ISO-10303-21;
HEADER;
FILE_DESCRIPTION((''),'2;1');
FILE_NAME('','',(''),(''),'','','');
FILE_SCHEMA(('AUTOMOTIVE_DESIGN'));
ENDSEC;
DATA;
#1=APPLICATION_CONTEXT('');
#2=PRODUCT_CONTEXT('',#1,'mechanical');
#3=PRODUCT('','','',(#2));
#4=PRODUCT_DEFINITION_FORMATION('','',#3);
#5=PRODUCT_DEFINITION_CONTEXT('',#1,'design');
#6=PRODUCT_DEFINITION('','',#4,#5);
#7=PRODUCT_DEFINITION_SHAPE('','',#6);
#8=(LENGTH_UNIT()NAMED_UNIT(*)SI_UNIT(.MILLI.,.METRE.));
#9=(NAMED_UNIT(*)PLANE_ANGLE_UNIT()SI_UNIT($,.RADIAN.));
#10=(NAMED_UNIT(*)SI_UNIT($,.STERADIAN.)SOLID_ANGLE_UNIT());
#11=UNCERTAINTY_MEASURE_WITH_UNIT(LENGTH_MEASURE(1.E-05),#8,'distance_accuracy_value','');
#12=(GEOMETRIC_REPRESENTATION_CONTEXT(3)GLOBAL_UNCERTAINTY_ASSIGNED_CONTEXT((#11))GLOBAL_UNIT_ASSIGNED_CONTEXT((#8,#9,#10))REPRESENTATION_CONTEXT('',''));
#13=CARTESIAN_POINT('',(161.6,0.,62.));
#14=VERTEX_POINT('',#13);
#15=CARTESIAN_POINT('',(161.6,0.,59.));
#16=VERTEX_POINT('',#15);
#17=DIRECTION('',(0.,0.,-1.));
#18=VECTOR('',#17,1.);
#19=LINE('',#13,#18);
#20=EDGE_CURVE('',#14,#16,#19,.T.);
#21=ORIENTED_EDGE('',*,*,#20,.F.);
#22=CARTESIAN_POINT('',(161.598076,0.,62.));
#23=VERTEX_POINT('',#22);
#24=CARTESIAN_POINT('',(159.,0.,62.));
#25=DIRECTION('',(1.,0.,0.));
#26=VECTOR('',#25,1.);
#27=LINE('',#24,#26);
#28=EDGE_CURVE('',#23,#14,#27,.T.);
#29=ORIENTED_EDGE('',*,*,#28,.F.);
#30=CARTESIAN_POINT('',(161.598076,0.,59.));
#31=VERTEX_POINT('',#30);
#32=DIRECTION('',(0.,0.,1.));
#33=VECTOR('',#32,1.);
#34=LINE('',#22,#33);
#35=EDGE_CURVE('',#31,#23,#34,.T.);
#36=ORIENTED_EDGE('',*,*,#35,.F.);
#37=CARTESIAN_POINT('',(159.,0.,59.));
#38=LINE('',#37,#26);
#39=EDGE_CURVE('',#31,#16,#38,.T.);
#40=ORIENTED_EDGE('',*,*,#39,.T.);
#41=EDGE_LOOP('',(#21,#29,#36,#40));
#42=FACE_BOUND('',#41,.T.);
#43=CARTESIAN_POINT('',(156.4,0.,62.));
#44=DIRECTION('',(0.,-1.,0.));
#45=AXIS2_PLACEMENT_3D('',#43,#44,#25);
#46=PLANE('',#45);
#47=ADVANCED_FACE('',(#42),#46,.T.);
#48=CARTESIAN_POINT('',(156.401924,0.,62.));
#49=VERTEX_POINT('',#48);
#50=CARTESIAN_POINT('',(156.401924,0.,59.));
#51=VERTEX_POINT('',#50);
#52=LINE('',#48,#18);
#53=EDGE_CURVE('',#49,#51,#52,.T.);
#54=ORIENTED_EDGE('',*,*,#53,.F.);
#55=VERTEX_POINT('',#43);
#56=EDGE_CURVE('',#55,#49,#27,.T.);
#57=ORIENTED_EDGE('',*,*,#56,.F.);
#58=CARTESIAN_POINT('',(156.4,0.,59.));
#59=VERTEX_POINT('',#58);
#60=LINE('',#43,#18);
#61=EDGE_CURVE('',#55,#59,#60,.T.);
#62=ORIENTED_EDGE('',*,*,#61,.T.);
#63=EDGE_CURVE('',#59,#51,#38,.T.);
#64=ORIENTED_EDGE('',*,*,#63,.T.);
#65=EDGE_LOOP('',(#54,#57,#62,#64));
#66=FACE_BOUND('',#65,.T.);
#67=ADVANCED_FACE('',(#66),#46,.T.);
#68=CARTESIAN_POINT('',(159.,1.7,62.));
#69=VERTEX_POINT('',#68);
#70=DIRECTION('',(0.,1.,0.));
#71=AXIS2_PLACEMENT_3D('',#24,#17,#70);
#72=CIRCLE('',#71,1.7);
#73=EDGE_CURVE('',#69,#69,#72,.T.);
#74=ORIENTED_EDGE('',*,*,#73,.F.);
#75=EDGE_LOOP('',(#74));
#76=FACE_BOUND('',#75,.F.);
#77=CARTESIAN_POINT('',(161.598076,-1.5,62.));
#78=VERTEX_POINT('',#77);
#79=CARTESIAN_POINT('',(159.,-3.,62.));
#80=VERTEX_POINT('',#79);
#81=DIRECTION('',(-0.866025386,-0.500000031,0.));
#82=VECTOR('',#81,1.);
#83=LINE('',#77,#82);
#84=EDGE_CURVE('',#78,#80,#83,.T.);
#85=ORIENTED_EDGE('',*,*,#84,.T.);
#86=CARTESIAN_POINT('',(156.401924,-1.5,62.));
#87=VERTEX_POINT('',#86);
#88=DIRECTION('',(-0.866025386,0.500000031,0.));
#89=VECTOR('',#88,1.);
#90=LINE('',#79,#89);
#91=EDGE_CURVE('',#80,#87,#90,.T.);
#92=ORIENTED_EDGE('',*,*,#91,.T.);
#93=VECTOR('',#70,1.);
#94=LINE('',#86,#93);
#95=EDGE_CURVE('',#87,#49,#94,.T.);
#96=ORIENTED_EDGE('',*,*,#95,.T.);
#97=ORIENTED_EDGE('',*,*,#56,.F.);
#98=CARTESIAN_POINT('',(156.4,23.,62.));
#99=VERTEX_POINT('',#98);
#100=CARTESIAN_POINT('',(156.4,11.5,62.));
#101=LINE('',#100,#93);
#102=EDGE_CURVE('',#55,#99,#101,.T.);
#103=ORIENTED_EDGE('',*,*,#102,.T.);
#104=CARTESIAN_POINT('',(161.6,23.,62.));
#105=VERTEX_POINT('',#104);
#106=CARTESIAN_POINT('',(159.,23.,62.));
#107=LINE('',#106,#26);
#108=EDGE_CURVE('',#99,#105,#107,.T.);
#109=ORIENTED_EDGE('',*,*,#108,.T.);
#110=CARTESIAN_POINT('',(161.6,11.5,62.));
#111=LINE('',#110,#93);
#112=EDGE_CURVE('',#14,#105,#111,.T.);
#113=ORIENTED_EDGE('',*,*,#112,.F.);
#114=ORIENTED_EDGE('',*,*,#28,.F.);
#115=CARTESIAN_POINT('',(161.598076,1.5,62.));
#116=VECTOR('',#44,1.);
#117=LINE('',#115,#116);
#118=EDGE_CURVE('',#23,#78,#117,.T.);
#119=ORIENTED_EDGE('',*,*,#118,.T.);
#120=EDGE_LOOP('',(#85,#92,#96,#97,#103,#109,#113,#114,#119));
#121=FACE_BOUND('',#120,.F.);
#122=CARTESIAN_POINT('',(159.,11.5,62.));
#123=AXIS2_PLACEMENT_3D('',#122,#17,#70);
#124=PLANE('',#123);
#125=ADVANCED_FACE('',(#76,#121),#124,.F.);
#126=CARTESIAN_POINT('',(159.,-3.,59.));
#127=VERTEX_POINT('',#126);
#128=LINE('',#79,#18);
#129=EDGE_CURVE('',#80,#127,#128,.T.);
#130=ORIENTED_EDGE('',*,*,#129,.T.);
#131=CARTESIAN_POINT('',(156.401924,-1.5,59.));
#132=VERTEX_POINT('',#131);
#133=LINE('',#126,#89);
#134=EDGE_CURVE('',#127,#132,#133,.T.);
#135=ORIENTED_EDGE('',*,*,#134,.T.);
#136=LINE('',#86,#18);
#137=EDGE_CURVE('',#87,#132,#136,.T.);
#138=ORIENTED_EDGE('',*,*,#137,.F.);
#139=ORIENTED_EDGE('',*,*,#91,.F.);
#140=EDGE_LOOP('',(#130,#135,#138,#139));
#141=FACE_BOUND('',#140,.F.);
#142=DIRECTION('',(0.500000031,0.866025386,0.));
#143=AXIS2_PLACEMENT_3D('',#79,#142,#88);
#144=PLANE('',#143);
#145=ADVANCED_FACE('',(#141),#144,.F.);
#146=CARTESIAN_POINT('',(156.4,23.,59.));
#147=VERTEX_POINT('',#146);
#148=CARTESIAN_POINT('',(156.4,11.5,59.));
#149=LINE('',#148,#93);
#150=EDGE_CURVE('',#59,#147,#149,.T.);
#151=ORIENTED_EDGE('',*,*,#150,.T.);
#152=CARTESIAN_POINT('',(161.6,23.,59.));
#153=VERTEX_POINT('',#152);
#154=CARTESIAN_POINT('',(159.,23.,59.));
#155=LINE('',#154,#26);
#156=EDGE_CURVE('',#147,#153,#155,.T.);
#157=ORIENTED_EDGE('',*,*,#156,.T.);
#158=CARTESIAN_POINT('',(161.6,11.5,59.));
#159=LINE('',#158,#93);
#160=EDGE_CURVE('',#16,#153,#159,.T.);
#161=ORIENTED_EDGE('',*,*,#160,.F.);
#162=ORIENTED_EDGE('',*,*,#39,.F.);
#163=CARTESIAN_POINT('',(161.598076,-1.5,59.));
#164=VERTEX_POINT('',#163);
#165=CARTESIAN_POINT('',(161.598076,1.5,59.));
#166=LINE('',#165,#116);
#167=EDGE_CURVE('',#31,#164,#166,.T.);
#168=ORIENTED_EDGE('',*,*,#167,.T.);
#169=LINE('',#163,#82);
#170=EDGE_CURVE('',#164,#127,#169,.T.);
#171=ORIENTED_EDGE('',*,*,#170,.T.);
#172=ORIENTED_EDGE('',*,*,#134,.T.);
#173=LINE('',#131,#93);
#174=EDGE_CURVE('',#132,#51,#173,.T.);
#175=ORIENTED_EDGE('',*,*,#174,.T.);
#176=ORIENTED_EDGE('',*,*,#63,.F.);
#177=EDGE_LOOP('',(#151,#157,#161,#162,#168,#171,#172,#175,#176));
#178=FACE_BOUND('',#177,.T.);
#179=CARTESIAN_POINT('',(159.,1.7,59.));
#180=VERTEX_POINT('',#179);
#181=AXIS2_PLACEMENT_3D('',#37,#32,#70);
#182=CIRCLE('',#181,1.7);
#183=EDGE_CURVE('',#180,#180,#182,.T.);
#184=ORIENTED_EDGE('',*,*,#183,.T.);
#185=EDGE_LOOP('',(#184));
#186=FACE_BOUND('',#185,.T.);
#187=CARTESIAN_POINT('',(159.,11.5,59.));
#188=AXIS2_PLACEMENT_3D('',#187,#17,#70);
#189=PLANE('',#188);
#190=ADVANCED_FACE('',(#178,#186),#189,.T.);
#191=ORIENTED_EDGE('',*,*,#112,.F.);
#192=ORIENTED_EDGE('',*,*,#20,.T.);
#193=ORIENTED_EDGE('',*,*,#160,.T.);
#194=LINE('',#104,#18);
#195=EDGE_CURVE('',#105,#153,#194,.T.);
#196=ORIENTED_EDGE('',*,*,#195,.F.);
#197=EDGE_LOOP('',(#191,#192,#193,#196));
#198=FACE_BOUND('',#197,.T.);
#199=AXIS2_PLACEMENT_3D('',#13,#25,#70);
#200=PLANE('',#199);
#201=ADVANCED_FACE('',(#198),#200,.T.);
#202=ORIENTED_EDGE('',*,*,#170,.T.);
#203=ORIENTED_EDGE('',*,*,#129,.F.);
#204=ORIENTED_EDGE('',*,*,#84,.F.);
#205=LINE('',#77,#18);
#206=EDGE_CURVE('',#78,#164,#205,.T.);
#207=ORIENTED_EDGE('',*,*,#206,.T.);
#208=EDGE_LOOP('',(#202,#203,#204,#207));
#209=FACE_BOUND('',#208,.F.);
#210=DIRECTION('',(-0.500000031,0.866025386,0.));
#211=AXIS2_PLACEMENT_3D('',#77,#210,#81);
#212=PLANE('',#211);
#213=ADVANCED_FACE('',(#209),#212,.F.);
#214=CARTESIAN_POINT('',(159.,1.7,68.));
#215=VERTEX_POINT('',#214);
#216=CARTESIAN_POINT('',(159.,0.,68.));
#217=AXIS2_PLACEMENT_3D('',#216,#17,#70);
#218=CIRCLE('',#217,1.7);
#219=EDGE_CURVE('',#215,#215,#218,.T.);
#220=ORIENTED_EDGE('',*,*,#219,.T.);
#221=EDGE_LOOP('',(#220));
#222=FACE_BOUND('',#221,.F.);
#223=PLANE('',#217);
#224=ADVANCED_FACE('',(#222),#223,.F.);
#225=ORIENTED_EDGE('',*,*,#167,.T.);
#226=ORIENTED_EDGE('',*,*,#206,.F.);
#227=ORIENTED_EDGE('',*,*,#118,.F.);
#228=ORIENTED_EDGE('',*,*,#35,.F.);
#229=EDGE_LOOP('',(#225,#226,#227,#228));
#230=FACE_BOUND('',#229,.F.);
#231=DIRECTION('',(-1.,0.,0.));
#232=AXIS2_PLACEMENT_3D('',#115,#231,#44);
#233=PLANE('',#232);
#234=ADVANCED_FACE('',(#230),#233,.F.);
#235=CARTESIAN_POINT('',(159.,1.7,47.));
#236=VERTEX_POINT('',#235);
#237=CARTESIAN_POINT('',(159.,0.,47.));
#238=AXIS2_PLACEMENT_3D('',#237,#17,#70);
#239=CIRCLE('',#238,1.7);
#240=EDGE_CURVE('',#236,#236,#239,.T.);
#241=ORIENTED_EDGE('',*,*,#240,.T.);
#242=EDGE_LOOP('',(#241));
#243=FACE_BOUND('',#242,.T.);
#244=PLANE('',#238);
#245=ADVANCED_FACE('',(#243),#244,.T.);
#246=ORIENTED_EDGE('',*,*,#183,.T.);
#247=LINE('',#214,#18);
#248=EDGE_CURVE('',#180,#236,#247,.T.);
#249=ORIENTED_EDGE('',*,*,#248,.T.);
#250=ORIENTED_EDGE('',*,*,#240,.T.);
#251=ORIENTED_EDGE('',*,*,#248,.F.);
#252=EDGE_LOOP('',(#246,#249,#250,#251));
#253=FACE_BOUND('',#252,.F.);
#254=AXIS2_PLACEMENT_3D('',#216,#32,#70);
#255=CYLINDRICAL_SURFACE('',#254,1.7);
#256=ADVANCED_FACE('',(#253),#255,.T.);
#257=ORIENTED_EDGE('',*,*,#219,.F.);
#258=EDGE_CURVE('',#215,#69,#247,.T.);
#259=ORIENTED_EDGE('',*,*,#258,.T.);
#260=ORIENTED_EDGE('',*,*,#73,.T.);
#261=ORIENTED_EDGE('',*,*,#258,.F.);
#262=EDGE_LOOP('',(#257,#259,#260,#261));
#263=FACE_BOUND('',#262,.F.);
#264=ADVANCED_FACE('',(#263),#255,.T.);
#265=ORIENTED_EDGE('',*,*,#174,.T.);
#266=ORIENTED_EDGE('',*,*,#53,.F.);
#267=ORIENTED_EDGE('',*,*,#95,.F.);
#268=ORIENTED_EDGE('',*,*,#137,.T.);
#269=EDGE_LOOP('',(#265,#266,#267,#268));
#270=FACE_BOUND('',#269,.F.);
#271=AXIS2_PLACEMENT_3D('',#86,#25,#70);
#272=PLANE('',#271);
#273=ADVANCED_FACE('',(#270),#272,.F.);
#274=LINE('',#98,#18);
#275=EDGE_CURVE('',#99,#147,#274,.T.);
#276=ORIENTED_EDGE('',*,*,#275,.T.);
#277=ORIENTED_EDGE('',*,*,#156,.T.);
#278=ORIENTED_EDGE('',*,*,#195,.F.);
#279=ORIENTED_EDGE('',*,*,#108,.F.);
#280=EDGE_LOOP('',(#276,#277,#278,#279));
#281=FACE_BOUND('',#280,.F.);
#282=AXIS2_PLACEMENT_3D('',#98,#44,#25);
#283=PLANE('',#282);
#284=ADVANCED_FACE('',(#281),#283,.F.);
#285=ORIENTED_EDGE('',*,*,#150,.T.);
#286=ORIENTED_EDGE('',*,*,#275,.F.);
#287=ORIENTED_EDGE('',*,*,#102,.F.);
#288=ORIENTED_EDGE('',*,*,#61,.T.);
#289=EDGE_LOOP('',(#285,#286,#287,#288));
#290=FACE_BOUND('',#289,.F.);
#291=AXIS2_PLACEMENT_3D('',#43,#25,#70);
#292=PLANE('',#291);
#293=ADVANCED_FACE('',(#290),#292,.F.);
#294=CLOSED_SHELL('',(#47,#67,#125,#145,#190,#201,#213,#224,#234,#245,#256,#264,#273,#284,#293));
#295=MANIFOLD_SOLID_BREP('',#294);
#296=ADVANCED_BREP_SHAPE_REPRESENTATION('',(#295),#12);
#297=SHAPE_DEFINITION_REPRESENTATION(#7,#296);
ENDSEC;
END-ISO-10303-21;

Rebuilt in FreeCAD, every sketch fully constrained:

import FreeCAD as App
import Part
import Sketcher
Q = App.Units.Quantity

doc = App.newDocument("Part")
body = doc.addObject("PartDesign::Body", "Body")

# Sketch on XY plane
sketch1 = doc.addObject("Sketcher::SketchObject", "Sketch")
body.addObject(sketch1)
sketch1.AttachmentSupport = (doc.XY_Plane, [""])
sketch1.MapMode = "FlatFace"
sketch1.AttachmentOffset = App.Placement(App.Vector(0, 0, -6), App.Rotation())
sketch1.addGeometry(Part.Circle(App.Vector(0, 0, 0), App.Vector(0, 0, 1), 1.7), False)
sketch1.addConstraint([
    Sketcher.Constraint("Coincident", 0, 3, -1, 1),
    Sketcher.Constraint("Diameter", 0, 3.4),
])
pad1 = doc.addObject("PartDesign::Pad", "Pad")
body.addObject(pad1)
pad1.Profile = sketch1
pad1.Length = 21
body2 = doc.addObject("PartDesign::Body", "Body001")

# Sketch on XY plane
sketch2 = doc.addObject("Sketcher::SketchObject", "Sketch001")
body2.addObject(sketch2)
sketch2.AttachmentSupport = (doc.getObject("XY_Plane001"), [""])
sketch2.MapMode = "FlatFace"
sketch2.addGeometry([
    Part.LineSegment(App.Vector(0, 3, 0), App.Vector(0, -3, 0)),
    Part.LineSegment(App.Vector(0, -3, 0), App.Vector(23, -3, 0)),
    Part.LineSegment(App.Vector(23, -3, 0), App.Vector(23, 3, 0)),
    Part.LineSegment(App.Vector(23, 3, 0), App.Vector(0, 3, 0)),
], False)
sketch2.addConstraint([
    Sketcher.Constraint("Coincident", 0, 2, 1, 1),
    Sketcher.Constraint("Coincident", 1, 2, 2, 1),
    Sketcher.Constraint("Coincident", 2, 2, 3, 1),
    Sketcher.Constraint("Coincident", 3, 2, 0, 1),
    Sketcher.Constraint("Vertical", 0),
    Sketcher.Constraint("Horizontal", 1),
    Sketcher.Constraint("Vertical", 2),
    Sketcher.Constraint("Horizontal", 3),
    Sketcher.Constraint("Symmetric", 0, 2, 3, 2, -1, 1),
    Sketcher.Constraint("DistanceX", 1, 1, 1, 2, 23.0),
    Sketcher.Constraint("DistanceY", 0, 2, 0, 1, 5.2),
])
pad2 = doc.addObject("PartDesign::Pad", "Pad001")
body2.addObject(pad2)
pad2.Profile = sketch2
pad2.Length = 3
body3 = doc.addObject("PartDesign::Body", "Body002")

# Sketch on XY plane
sketch3 = doc.addObject("Sketcher::SketchObject", "Sketch002")
body3.addObject(sketch3)
sketch3.AttachmentSupport = (doc.getObject("XY_Plane002"), [""])
sketch3.MapMode = "FlatFace"
sketch3.addGeometry([
    Part.LineSegment(App.Vector(3, 0, 0), App.Vector(1.5, 2.6, 0)),  # 0
    Part.LineSegment(App.Vector(1.5, 2.6, 0), App.Vector(-1.5, 2.6, 0)),  # 1
    Part.LineSegment(App.Vector(-1.5, 2.6, 0), App.Vector(-3, 0, 0)),  # 2
    Part.LineSegment(App.Vector(-3, 0, 0), App.Vector(-1.5, -2.6, 0)),  # 3
    Part.LineSegment(App.Vector(-1.5, -2.6, 0), App.Vector(1.5, -2.6, 0)),  # 4
    Part.LineSegment(App.Vector(1.5, -2.6, 0), App.Vector(3, 0, 0)),  # 5
], False)
sketch3.addConstraint([
    Sketcher.Constraint("Coincident", 0, 2, 1, 1),
    Sketcher.Constraint("Coincident", 1, 2, 2, 1),
    Sketcher.Constraint("Coincident", 2, 2, 3, 1),
    Sketcher.Constraint("Coincident", 3, 2, 4, 1),
    Sketcher.Constraint("Coincident", 4, 2, 5, 1),
    Sketcher.Constraint("Coincident", 5, 2, 0, 1),
    Sketcher.Constraint("Horizontal", 1),
    Sketcher.Constraint("Horizontal", 4),
    Sketcher.Constraint("Symmetric", 0, 2, 3, 2, -1, 1),
    Sketcher.Constraint("Symmetric", 2, 2, 5, 2, -1, 1),
    Sketcher.Constraint("PointOnObject", 2, 2, -1),
    Sketcher.Constraint("Parallel", 2, 5),
    Sketcher.Constraint("Vertical", 1, 2, 3, 2),
    Sketcher.Constraint("DistanceX", 1, 2, 1, 1, 3.0),
    Sketcher.Constraint("Angle", 0, Q("120.000002 deg")),
    Sketcher.Constraint("Distance", 0, 3.0),
])
pad3 = doc.addObject("PartDesign::Pad", "Pad002")
body3.addObject(pad3)
pad3.Profile = sketch3
pad3.Length = 3
doc.recompute()

boolean = doc.addObject("PartDesign::Boolean", "Boolean")
body3.addObject(boolean)
boolean.Type = "Fuse"
boolean.addObjects([body])
doc.recompute()

boolean2 = doc.addObject("PartDesign::Boolean", "Boolean001")
body3.addObject(boolean2)
boolean2.Type = "Fuse"
boolean2.addObjects([body2])
body4 = doc.addObject("PartDesign::Body", "Body003")
doc.recompute()

body3.Placement = App.Placement(App.Vector(0, 0, 0), App.Rotation(App.Vector(1, 0, 0), 180))
boolean3 = doc.addObject("PartDesign::Boolean", "Boolean002")
body4.addObject(boolean3)
boolean3.Type = "Fuse"
boolean3.addObjects([body3])
body5 = doc.addObject("PartDesign::Body", "Body004")
doc.recompute()

body4.Placement = App.Placement(App.Vector(159, 0, 62), App.Rotation(App.Vector(0, 0, 1), 90))
boolean4 = doc.addObject("PartDesign::Boolean", "Boolean003")
body5.addObject(boolean4)
boolean4.Type = "Fuse"
boolean4.addObjects([body4])

doc.recompute()
